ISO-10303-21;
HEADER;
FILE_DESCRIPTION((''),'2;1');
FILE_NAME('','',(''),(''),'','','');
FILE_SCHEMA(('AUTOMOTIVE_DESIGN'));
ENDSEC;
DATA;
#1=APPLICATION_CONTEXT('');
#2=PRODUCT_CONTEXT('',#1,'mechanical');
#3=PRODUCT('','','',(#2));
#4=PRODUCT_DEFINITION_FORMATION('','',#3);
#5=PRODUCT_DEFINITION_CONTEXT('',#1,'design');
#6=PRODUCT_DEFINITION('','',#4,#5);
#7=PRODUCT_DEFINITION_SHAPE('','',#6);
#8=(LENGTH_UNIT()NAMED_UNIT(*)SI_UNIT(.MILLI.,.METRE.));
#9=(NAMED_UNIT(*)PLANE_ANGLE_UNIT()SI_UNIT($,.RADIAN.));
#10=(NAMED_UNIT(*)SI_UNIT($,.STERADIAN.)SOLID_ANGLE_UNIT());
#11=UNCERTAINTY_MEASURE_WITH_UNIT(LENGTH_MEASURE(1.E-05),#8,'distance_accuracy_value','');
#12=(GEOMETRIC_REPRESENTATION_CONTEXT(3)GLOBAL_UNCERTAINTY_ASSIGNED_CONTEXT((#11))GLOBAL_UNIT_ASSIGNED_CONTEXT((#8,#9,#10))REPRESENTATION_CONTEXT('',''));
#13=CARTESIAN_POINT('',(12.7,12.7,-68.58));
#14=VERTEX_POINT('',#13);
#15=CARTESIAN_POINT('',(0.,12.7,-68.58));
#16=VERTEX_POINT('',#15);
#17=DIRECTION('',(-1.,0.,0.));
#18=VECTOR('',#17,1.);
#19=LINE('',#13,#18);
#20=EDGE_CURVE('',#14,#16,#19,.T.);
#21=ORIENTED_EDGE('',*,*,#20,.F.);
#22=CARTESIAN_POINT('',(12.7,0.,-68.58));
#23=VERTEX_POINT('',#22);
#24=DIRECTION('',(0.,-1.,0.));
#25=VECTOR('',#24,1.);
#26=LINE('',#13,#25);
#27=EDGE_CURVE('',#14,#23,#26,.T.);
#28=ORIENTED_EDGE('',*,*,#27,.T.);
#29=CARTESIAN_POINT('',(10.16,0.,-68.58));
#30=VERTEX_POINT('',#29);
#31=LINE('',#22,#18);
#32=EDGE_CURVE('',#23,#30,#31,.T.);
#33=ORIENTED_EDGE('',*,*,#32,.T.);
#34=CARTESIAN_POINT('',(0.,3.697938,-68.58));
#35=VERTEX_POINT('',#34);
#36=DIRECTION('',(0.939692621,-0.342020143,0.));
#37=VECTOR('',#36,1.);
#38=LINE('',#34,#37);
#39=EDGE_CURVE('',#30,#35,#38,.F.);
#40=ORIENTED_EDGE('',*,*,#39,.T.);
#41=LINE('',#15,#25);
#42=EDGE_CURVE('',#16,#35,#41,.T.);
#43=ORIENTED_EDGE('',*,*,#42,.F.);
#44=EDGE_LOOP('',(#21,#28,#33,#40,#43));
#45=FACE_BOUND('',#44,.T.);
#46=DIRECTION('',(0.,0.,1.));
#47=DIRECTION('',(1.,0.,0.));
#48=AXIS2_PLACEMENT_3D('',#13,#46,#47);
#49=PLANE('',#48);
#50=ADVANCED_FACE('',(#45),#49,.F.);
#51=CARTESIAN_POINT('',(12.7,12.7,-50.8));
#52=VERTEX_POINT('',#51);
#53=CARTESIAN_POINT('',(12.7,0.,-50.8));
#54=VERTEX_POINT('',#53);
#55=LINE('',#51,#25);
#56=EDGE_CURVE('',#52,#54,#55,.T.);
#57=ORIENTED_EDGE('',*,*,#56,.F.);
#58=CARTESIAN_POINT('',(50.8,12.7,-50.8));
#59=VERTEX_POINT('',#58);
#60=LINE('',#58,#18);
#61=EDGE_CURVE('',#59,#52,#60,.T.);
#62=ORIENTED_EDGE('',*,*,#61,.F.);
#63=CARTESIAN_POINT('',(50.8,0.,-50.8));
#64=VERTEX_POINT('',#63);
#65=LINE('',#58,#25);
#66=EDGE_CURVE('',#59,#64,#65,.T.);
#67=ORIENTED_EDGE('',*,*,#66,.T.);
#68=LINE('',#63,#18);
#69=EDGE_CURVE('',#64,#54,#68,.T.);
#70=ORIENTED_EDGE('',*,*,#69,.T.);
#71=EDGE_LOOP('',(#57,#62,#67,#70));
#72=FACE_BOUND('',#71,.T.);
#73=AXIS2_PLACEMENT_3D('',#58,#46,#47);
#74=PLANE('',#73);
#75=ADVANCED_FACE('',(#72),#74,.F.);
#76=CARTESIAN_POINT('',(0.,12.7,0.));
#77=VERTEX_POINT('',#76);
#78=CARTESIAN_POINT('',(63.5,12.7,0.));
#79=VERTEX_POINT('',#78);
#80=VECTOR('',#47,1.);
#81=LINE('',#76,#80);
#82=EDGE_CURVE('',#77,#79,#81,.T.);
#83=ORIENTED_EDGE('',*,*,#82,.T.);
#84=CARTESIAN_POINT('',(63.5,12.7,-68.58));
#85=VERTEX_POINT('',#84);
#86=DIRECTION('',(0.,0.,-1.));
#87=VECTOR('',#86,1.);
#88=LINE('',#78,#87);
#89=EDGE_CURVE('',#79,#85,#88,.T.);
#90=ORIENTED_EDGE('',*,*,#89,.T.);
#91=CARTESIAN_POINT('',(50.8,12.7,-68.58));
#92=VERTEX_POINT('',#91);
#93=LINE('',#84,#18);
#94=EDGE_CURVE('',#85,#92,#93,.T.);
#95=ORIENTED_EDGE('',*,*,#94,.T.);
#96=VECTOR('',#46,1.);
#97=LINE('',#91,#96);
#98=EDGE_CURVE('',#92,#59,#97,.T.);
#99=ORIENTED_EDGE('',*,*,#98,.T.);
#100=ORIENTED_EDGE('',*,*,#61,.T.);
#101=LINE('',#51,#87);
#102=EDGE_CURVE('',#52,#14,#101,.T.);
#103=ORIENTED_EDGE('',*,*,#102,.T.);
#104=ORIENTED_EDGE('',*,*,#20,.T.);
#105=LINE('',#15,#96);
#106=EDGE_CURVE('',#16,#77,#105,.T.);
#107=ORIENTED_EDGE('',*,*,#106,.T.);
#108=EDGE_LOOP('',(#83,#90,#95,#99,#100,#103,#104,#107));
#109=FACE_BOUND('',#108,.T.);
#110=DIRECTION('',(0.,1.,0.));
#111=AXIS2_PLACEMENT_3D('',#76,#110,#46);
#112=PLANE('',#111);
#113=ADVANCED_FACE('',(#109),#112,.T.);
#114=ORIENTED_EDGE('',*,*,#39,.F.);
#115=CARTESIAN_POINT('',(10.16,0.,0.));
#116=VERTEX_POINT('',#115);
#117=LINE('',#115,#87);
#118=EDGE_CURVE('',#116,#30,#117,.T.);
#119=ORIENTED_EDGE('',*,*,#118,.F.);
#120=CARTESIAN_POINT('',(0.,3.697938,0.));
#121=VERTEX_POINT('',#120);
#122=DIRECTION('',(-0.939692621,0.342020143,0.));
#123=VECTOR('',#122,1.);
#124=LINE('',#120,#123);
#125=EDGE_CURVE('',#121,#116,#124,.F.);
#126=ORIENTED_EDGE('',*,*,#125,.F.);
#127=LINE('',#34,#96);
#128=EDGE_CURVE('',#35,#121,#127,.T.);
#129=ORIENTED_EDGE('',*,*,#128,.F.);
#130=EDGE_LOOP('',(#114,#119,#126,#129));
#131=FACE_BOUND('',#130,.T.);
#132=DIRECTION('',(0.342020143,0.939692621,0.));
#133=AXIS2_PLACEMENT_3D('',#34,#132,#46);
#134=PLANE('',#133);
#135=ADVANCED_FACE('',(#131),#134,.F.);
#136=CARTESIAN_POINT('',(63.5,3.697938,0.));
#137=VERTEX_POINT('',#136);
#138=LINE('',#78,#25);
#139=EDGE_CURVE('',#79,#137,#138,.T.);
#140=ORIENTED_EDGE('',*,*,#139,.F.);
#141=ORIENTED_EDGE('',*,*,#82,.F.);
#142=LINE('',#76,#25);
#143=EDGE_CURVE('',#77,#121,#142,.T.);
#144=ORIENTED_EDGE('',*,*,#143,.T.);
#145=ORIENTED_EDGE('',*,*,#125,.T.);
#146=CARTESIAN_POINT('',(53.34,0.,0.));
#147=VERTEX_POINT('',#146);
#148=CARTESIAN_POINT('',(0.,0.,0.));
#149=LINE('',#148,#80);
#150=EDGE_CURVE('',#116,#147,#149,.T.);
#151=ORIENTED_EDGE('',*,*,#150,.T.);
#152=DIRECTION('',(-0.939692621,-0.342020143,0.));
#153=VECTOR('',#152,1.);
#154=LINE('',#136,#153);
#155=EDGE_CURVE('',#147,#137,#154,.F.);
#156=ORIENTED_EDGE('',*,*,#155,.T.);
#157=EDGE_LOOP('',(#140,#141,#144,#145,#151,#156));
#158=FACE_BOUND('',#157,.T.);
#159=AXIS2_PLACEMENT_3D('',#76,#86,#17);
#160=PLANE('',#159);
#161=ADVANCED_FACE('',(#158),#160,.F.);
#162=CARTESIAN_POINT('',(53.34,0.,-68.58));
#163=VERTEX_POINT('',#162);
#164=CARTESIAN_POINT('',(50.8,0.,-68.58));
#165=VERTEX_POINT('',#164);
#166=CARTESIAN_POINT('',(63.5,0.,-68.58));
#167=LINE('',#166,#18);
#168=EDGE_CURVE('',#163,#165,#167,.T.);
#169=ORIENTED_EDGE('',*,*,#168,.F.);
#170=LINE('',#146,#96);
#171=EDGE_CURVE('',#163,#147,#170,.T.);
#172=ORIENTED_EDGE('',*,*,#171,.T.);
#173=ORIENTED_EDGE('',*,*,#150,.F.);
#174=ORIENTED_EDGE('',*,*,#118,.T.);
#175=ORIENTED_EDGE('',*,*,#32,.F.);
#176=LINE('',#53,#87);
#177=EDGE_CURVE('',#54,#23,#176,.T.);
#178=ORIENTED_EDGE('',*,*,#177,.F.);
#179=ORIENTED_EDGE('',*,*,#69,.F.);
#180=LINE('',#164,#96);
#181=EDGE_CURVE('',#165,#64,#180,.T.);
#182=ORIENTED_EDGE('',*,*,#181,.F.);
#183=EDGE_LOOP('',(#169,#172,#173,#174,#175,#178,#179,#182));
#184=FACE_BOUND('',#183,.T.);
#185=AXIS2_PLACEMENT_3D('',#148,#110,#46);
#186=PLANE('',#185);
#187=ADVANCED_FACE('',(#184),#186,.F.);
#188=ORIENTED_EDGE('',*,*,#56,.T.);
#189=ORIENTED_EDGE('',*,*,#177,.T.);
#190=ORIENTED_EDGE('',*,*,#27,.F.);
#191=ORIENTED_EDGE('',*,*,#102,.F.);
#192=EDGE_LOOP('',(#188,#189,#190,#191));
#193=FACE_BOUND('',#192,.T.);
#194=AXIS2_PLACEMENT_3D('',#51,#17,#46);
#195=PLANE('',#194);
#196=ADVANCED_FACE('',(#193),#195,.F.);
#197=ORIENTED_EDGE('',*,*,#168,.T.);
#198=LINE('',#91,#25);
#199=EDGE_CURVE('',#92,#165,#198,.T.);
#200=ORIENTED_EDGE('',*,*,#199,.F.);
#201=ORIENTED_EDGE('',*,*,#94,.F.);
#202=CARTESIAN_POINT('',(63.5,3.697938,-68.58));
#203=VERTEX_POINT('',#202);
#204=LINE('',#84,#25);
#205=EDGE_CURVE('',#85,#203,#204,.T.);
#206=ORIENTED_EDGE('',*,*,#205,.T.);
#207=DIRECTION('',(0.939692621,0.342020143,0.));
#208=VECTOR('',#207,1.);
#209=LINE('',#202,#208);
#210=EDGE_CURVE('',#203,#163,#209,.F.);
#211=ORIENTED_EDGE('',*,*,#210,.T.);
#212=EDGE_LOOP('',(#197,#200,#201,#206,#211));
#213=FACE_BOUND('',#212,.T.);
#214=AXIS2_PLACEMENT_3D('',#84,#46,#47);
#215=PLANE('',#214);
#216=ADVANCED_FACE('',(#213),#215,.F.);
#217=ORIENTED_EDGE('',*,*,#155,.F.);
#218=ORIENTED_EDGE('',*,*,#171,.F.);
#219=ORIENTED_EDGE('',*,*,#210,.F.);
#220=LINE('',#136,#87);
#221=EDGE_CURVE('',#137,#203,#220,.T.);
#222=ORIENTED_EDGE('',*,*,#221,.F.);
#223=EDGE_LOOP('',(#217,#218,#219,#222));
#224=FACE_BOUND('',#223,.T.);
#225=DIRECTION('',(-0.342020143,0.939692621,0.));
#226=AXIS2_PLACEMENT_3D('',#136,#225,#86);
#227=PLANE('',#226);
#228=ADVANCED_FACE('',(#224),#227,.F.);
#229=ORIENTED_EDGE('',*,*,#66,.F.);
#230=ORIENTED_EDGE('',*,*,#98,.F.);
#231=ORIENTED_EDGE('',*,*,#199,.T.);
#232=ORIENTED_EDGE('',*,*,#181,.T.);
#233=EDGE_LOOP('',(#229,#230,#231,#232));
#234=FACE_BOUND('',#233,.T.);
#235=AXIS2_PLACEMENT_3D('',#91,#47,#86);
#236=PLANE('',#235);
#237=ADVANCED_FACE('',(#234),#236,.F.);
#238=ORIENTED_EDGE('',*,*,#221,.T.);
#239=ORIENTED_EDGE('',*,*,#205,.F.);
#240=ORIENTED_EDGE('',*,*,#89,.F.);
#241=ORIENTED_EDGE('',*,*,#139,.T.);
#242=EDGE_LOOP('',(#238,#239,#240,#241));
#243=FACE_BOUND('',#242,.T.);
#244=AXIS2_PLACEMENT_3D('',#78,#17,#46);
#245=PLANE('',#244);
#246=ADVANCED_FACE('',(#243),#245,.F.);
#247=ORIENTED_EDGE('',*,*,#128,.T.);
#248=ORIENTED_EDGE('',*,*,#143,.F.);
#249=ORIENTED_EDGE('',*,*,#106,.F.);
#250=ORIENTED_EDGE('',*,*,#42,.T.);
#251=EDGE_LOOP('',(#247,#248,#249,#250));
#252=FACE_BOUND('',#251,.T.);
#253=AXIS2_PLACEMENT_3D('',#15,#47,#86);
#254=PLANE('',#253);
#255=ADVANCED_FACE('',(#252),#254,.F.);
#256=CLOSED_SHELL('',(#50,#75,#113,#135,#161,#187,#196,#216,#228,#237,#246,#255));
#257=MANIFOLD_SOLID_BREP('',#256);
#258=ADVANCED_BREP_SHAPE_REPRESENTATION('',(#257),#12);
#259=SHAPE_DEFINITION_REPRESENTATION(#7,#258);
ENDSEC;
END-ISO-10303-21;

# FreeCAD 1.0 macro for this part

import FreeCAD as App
import Part
import Sketcher
from FreeCAD import Vector
Q = App.Units.Quantity


def edges_at(feature, points):
    """Names of the edges that pass closest to the given points."""
    edges = feature.Shape.Edges
    near = lambda p: min(range(len(edges)), key=lambda i: edges[i].distToShape(Part.Vertex(*p))[0])
    return sorted({f"Edge{near(p) + 1}" for p in points})


def add_polygon(sketch, points):
    """Adds a closed chain of lines whose ends are joined by coincident constraints."""
    first, n = sketch.GeometryCount, len(points)
    for a, b in zip(points, points[1:] + points[:1]):
        sketch.addGeometry(Part.LineSegment(App.Vector(*a, 0), App.Vector(*b, 0)), False)
    for i in range(n):
        sketch.addConstraint(Sketcher.Constraint("Coincident", first + i, 2, first + (i + 1) % n, 1))

doc = App.newDocument("Part")
body = doc.addObject("PartDesign::Body", "Body")

# Sketch on XZ plane
sketch1 = doc.addObject("Sketcher::SketchObject", "Sketch")
body.addObject(sketch1)
sketch1.AttachmentSupport = (doc.XZ_Plane, [""])
sketch1.MapMode = "FlatFace"
add_polygon(sketch1, [(0, 0), (64, 0), (64, -69), (51, -69), (51, -51), (13, -51), (13, -69), (0, -69)])  # lines 0-7
sketch1.addConstraint(Sketcher.Constraint("Horizontal", 0))
sketch1.addConstraint(Sketcher.Constraint("Vertical", 1))
sketch1.addConstraint(Sketcher.Constraint("Horizontal", 2))
sketch1.addConstraint(Sketcher.Constraint("Vertical", 3))
sketch1.addConstraint(Sketcher.Constraint("Horizontal", 4))
sketch1.addConstraint(Sketcher.Constraint("Vertical", 5))
sketch1.addConstraint(Sketcher.Constraint("Horizontal", 6))
sketch1.addConstraint(Sketcher.Constraint("Vertical", 7))
sketch1.addConstraint(Sketcher.Constraint("Coincident", 7, 2, -1, 1))
sketch1.addConstraint(Sketcher.Constraint("Horizontal", 2, 2, 5, 2))
sketch1.addConstraint(Sketcher.Constraint("Equal", 2, 6))
sketch1.addConstraint(Sketcher.Constraint("DistanceX", 0, 1, 0, 2, Q("2.5 in")))
sketch1.addConstraint(Sketcher.Constraint("DistanceX", 2, 2, 2, 1, Q("0.5 in")))
sketch1.addConstraint(Sketcher.Constraint("DistanceY", 1, 2, 1, 1, Q("2.7 in")))
sketch1.addConstraint(Sketcher.Constraint("DistanceY", 3, 1, 3, 2, Q("0.7 in")))
pad1 = doc.addObject("PartDesign::Pad", "Pad")
body.addObject(pad1)
pad1.Profile = sketch1
pad1.Length = Q("0.5 in")
pad1.Reversed = True
doc.recompute()

chamfer = doc.addObject("PartDesign::Chamfer", "Chamfer")
body.addObject(chamfer)
chamfer.Base = (pad1, edges_at(pad1, [(0, 0, -34.29), (63.5, 0, -34.29)]))
chamfer.ChamferType = "Two distances"
chamfer.Size = Q("0.4 in")
chamfer.Size2 = 3.697938
chamfer.FlipDirection = True

doc.recompute()
